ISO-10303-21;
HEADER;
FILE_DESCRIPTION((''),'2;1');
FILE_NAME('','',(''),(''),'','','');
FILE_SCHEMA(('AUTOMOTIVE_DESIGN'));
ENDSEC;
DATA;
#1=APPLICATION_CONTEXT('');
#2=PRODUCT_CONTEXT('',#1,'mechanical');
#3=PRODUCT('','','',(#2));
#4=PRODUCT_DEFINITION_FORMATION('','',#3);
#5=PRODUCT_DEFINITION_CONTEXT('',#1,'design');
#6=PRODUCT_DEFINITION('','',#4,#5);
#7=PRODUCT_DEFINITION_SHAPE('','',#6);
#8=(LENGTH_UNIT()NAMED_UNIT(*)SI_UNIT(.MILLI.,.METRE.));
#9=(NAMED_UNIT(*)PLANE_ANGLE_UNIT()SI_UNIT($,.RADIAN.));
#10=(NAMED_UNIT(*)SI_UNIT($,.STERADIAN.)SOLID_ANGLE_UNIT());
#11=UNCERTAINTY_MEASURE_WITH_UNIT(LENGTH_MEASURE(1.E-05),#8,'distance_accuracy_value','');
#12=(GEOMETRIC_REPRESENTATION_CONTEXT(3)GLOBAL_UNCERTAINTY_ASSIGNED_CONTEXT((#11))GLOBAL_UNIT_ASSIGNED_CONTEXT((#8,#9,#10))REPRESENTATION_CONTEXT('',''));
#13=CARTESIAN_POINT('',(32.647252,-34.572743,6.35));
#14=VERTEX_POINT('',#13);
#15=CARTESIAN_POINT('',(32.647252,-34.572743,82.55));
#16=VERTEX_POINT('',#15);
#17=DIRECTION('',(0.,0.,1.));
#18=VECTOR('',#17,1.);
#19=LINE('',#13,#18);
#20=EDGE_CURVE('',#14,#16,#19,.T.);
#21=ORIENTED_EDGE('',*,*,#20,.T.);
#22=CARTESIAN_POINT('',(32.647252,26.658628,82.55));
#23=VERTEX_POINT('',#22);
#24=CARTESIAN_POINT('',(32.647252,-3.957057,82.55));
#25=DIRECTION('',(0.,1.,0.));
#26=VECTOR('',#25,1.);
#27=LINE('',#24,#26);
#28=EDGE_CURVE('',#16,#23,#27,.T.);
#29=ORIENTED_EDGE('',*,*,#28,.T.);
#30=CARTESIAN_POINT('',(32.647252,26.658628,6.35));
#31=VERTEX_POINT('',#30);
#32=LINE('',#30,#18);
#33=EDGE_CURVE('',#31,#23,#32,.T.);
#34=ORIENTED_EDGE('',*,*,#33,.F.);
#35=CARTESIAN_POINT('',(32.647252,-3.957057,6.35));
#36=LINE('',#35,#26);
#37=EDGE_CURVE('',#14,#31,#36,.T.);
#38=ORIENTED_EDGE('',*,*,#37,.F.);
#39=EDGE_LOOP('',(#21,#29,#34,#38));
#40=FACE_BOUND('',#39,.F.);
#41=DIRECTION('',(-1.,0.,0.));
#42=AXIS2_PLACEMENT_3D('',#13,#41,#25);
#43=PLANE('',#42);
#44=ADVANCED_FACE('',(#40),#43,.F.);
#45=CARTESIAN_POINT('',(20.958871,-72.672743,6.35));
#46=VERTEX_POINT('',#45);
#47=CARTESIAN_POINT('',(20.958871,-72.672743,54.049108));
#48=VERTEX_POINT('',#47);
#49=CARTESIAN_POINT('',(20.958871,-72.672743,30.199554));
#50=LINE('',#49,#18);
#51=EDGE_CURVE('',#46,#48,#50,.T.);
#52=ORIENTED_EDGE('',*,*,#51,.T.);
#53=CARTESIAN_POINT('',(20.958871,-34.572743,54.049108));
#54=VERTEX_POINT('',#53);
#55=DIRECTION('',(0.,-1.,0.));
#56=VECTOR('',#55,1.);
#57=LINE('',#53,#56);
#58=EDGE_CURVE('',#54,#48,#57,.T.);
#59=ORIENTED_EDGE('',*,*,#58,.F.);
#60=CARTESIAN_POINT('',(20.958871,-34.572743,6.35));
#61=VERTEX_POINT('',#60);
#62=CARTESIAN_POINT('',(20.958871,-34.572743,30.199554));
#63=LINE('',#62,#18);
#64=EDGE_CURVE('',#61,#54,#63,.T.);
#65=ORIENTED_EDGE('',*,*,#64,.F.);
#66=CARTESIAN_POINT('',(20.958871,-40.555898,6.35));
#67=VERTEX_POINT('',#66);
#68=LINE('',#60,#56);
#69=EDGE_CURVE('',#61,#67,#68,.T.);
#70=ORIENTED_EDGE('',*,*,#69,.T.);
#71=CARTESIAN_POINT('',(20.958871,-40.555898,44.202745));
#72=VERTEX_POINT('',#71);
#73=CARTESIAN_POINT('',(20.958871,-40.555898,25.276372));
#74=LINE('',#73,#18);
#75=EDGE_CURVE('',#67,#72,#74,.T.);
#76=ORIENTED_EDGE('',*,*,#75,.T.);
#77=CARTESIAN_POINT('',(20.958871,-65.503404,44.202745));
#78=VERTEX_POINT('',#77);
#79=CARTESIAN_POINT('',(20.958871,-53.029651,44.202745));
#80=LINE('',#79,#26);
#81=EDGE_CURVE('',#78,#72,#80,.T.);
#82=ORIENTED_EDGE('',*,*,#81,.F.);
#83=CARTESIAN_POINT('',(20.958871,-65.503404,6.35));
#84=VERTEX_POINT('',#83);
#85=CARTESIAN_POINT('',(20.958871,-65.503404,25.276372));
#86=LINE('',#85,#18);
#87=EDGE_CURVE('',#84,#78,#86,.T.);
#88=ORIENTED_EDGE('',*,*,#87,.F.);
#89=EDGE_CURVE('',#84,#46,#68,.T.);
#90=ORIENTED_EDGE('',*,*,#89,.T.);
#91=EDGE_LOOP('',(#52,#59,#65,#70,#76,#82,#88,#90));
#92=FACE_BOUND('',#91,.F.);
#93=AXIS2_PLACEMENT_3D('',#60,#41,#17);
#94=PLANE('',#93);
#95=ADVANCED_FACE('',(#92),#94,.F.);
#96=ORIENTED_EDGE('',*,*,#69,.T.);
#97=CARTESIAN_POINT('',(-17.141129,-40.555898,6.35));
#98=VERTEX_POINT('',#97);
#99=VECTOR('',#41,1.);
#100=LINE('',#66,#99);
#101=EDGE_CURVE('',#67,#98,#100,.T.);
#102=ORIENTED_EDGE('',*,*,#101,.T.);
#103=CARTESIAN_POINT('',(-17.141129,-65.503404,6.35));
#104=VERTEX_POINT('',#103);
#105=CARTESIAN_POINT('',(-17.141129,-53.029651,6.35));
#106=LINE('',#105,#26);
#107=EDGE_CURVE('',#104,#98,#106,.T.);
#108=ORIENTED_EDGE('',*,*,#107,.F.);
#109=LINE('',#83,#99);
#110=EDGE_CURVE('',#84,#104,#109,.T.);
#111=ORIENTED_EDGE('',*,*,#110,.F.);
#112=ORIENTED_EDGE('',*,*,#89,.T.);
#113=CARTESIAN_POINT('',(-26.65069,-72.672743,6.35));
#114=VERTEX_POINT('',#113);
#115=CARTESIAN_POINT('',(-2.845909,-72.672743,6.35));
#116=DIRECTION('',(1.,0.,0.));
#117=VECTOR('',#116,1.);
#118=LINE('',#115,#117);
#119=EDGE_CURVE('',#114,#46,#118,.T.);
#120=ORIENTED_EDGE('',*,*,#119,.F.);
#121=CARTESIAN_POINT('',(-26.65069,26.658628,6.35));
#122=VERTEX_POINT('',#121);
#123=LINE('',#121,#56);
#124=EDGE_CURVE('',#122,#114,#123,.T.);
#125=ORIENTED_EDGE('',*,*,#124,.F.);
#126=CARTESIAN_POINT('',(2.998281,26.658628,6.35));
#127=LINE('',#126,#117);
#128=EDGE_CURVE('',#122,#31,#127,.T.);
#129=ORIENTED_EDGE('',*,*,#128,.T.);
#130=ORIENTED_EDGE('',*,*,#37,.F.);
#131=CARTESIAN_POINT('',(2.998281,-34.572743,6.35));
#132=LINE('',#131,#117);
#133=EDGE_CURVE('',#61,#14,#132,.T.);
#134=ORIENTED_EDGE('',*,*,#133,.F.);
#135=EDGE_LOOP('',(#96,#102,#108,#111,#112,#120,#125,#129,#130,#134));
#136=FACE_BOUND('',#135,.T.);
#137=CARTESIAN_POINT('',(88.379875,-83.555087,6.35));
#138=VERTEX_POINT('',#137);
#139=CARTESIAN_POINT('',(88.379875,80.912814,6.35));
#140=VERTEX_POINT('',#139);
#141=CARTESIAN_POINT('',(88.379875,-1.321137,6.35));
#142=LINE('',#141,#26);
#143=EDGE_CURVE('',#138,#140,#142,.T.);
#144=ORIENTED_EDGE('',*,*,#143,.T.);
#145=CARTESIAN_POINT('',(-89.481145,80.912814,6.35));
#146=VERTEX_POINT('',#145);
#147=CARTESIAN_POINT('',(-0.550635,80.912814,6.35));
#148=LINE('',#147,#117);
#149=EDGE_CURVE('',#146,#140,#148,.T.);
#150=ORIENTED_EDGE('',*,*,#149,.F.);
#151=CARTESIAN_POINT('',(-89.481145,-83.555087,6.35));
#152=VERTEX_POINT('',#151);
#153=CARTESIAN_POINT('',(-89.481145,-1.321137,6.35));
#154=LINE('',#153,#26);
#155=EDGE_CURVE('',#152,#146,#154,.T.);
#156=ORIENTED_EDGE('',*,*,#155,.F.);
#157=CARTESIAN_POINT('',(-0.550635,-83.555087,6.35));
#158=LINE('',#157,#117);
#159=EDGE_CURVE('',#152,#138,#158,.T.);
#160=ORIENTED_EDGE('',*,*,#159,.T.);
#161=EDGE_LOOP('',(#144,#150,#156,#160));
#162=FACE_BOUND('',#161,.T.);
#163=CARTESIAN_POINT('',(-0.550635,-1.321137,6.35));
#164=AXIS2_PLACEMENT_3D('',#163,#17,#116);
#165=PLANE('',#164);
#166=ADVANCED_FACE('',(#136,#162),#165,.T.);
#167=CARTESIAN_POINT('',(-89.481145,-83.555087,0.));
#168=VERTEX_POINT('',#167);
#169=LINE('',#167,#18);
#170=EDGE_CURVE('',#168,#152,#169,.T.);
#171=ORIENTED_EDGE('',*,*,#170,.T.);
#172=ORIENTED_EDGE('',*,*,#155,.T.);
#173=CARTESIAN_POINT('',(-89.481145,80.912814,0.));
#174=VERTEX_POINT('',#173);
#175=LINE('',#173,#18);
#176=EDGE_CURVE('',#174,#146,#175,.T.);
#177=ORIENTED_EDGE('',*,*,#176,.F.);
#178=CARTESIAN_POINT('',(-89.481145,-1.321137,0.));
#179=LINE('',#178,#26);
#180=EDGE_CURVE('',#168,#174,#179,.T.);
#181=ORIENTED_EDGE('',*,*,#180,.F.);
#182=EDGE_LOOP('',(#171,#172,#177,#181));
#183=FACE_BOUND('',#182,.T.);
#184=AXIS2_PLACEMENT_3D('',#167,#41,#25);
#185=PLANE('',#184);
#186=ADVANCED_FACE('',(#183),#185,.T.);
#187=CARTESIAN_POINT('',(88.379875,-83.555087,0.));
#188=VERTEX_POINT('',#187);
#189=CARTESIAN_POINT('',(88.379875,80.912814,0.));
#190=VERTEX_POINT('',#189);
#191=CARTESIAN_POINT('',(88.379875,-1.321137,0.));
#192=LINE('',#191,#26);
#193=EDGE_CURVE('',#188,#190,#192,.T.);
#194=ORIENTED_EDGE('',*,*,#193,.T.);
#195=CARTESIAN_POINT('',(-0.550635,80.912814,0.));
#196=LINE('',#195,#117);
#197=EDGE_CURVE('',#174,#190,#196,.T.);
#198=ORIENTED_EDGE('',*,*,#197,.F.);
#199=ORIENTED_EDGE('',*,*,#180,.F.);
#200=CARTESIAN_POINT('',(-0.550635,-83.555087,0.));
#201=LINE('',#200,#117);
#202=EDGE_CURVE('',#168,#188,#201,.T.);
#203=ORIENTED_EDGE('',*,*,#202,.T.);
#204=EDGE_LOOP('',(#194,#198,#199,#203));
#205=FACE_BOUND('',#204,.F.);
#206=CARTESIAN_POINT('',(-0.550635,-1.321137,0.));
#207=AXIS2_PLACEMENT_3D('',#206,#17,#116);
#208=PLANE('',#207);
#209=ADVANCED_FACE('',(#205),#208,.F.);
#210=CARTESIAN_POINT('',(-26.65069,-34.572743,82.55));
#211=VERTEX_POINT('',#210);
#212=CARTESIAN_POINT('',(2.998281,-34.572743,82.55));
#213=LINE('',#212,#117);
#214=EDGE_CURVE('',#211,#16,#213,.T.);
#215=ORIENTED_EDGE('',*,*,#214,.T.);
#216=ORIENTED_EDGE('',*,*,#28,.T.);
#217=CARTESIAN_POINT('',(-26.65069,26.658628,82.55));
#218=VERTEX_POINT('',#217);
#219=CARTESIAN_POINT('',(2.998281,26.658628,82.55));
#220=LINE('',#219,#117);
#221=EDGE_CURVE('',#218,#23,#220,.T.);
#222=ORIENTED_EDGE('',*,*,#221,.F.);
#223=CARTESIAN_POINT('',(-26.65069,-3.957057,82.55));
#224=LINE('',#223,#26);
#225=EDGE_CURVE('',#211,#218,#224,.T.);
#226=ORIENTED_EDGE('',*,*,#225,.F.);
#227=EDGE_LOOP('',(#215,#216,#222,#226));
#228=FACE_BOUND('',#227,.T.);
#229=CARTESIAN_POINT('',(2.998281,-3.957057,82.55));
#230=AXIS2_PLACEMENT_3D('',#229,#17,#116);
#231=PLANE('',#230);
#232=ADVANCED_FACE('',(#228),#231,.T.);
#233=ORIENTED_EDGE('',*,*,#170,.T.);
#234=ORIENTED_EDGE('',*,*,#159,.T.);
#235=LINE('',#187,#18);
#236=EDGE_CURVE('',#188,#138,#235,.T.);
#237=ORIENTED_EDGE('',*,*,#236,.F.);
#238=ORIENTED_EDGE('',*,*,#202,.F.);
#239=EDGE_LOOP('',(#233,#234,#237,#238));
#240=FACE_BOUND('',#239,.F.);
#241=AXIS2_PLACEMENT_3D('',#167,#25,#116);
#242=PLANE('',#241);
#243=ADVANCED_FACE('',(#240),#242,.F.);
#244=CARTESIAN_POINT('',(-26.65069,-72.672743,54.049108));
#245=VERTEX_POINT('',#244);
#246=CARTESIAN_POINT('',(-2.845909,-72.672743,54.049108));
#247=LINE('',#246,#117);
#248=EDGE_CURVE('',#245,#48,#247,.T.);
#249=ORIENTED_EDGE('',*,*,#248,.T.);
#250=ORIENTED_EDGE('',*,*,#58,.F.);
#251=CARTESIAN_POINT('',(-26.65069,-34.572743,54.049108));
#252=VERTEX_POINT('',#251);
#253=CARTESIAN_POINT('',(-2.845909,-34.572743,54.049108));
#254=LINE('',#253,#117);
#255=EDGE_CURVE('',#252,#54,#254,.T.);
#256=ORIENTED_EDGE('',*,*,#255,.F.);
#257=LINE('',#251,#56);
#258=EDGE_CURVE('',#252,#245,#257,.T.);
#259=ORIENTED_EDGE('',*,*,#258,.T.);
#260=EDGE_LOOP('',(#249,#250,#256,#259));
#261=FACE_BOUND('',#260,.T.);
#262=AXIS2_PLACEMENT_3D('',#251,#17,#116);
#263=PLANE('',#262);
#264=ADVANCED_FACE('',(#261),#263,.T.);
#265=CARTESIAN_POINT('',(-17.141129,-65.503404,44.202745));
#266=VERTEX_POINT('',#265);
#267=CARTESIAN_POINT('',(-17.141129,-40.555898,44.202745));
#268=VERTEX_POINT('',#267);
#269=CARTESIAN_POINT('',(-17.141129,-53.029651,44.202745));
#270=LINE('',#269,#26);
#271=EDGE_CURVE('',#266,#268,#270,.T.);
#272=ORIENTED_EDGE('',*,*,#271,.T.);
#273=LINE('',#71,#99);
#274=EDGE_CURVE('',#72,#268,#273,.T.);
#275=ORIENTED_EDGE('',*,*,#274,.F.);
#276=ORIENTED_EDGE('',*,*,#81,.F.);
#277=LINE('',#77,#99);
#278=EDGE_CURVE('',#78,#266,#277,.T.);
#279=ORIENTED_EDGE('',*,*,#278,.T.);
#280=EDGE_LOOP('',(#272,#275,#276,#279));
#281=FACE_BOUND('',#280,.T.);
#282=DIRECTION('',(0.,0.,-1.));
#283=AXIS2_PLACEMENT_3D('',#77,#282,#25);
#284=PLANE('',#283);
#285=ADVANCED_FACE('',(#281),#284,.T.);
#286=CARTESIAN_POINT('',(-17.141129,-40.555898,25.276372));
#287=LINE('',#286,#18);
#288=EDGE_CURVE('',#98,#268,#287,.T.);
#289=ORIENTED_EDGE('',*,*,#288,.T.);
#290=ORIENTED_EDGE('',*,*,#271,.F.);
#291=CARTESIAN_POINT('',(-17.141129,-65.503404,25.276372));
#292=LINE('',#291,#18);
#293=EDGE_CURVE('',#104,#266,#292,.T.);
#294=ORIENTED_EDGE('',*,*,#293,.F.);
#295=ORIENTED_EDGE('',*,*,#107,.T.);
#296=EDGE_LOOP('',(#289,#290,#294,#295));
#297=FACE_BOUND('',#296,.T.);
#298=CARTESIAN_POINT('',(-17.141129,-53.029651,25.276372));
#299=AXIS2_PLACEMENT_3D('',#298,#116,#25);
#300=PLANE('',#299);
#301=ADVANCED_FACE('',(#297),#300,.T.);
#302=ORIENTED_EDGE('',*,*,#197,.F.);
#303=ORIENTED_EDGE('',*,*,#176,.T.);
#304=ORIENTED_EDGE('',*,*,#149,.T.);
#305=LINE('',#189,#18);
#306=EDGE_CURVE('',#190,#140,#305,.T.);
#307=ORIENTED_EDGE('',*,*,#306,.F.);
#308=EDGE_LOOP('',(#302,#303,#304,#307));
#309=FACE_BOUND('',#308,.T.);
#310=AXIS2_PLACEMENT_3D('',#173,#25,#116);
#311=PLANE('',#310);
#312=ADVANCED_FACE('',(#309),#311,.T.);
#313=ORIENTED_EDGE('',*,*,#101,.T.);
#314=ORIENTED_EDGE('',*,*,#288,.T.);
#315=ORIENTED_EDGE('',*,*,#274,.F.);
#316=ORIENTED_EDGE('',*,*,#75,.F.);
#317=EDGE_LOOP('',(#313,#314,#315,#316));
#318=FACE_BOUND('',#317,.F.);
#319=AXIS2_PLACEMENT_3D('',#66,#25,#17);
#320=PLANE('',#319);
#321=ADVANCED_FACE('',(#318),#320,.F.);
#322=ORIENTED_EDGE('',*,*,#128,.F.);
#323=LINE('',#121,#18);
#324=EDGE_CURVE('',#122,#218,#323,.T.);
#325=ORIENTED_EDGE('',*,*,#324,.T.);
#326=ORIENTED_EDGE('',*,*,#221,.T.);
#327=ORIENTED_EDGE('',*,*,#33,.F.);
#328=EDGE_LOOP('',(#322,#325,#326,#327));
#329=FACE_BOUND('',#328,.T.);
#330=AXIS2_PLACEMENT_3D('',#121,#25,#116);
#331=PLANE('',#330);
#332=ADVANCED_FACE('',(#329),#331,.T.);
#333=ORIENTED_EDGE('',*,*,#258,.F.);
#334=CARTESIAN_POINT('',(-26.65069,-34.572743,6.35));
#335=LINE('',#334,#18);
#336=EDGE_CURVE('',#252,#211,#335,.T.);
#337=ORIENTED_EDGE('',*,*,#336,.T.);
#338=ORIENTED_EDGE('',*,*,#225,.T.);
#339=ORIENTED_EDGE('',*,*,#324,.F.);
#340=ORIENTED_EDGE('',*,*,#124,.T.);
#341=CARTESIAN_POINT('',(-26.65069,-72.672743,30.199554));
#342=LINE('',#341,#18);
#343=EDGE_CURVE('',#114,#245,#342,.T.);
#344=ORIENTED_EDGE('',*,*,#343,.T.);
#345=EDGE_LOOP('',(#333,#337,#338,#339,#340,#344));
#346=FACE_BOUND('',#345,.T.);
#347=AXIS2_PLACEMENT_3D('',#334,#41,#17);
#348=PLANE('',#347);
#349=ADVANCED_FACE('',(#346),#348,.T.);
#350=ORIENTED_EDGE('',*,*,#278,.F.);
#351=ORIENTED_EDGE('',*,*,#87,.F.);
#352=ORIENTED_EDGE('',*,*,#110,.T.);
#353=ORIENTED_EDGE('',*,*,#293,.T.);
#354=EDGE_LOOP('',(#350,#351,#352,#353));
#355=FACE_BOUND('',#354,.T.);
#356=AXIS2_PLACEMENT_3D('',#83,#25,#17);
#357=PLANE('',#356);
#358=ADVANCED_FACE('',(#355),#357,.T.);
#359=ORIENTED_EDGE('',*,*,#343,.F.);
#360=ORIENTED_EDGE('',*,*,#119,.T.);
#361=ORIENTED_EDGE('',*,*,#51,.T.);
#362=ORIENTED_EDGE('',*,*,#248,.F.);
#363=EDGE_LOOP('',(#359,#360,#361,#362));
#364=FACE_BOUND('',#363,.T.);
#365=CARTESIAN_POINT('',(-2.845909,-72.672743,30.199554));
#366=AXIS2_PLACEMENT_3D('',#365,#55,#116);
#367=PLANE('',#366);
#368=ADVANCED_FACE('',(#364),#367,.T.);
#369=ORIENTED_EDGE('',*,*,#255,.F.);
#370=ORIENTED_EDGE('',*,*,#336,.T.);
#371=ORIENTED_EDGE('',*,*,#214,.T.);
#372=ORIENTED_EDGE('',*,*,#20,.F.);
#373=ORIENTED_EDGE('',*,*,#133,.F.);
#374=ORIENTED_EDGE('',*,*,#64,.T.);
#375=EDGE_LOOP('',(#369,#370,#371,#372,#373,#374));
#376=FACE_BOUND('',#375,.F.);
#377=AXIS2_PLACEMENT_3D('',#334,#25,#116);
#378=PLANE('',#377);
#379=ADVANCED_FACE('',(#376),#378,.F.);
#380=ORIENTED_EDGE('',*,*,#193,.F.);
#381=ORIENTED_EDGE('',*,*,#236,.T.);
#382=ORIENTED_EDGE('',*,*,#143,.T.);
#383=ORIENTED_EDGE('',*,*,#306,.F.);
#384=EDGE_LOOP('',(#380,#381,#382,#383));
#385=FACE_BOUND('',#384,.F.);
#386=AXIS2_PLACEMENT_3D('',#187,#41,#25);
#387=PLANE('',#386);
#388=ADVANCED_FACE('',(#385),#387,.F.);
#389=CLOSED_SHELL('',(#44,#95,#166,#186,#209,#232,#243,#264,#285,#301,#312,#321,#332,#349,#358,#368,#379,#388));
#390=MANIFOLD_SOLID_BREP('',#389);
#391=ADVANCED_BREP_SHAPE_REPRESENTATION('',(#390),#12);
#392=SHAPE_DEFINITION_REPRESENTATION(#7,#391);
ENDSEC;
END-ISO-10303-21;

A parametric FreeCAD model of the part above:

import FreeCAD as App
import Part
import Sketcher
Q = App.Units.Quantity


def add_polygon(sketch, points):
    """Adds a closed chain of lines whose ends are joined by coincident constraints."""
    first, n = sketch.GeometryCount, len(points)
    for a, b in zip(points, points[1:] + points[:1]):
        sketch.addGeometry(Part.LineSegment(App.Vector(*a, 0), App.Vector(*b, 0)), False)
    for i in range(n):
        sketch.addConstraint(Sketcher.Constraint("Coincident", first + i, 2, first + (i + 1) % n, 1))

doc = App.newDocument("Part")
body = doc.addObject("PartDesign::Body", "Body")

# Sketch on XY plane
sketch1 = body.newObject("Sketcher::SketchObject", "Sketch")
sketch1.AttachmentSupport = (doc.getObject("XY_Plane"), [""])
sketch1.MapMode = "FlatFace"
add_polygon(sketch1, [(-89.481145, 80.912814), (-89.481145, -83.555087), (88.379875, -83.555087), (88.379875, 80.912814)])  # lines 0-3
sketch1.addConstraint(Sketcher.Constraint("Vertical", 0))
sketch1.addConstraint(Sketcher.Constraint("Horizontal", 1))
sketch1.addConstraint(Sketcher.Constraint("Vertical", 2))
sketch1.addConstraint(Sketcher.Constraint("Horizontal", 3))
sketch1.addConstraint(Sketcher.Constraint("DistanceY", 0, 2, 0, 1, 164.467901))
sketch1.addConstraint(Sketcher.Constraint("DistanceX", 1, 1, 1, 2, 177.86102))
sketch1.addConstraint(Sketcher.Constraint("DistanceX", 0, 2, -1, 1, 89.481145))
sketch1.addConstraint(Sketcher.Constraint("DistanceY", 0, 2, -1, 1, 83.555087))
pad1 = body.newObject("PartDesign::Pad", "Pad")
pad1.Profile = sketch1
pad1.Length = Q("0.25 in")

# Sketch on XY plane
sketch2 = body.newObject("Sketcher::SketchObject", "Sketch001")
sketch2.AttachmentSupport = (doc.getObject("XY_Plane"), [""])
sketch2.MapMode = "FlatFace"
sketch2.AttachmentOffset = App.Placement(App.Vector(0, 0, 0.25 * 25.4), App.Rotation())
add_polygon(sketch2, [(-26.65069, 26.658628), (-26.65069, -34.572743), (32.647252, -34.572743), (32.647252, 26.658628)])  # lines 0-3
sketch2.addConstraint(Sketcher.Constraint("Vertical", 0))
sketch2.addConstraint(Sketcher.Constraint("Horizontal", 1))
sketch2.addConstraint(Sketcher.Constraint("Vertical", 2))
sketch2.addConstraint(Sketcher.Constraint("Horizontal", 3))
sketch2.addConstraint(Sketcher.Constraint("DistanceX", 1, 1, 1, 2, 59.297942))
sketch2.addConstraint(Sketcher.Constraint("DistanceY", 0, 2, 0, 1, 61.231371))
sketch2.addConstraint(Sketcher.Constraint("DistanceX", 0, 2, -1, 1, 26.65069))
sketch2.addConstraint(Sketcher.Constraint("DistanceY", -1, 1, 2, 2, 26.658628))
pad2 = body.newObject("PartDesign::Pad", "Pad001")
pad2.Profile = sketch2
pad2.Length = Q("3 in")

# Sketch on XZ plane
sketch3 = body.newObject("Sketcher::SketchObject", "Sketch002")
sketch3.AttachmentSupport = (doc.getObject("XZ_Plane"), [""])
sketch3.MapMode = "FlatFace"
sketch3.AttachmentOffset = App.Placement(App.Vector(0, 0, 34.572743), App.Rotation())
add_polygon(sketch3, [(-26.65069, 54.049108), (-26.65069, 6.35), (20.958871, 6.35), (20.958871, 54.049108)])  # lines 0-3
sketch3.addConstraint(Sketcher.Constraint("Vertical", 0))
sketch3.addConstraint(Sketcher.Constraint("Horizontal", 1))
sketch3.addConstraint(Sketcher.Constraint("Vertical", 2))
sketch3.addConstraint(Sketcher.Constraint("Horizontal", 3))
sketch3.addConstraint(Sketcher.Constraint("DistanceY", -1, 1, 0, 2, Q("0.25 in")))
sketch3.addConstraint(Sketcher.Constraint("DistanceX", 1, 1, 1, 2, 47.60956))
sketch3.addConstraint(Sketcher.Constraint("DistanceY", 0, 2, 0, 1, 47.699108))
sketch3.addConstraint(Sketcher.Constraint("DistanceX", 0, 2, -1, 1, 26.65069))
pad3 = body.newObject("PartDesign::Pad", "Pad002")
pad3.Profile = sketch3
pad3.Length = Q("1.5 in")

# Sketch on YZ plane
sketch4 = body.newObject("Sketcher::SketchObject", "Sketch003")
sketch4.AttachmentSupport = (doc.getObject("YZ_Plane"), [""])
sketch4.MapMode = "FlatFace"
sketch4.AttachmentOffset = App.Placement(App.Vector(0, 0, 20.958871), App.Rotation())
add_polygon(sketch4, [(-65.503404, 44.202745), (-65.503404, 6.35), (-40.555898, 6.35), (-40.555898, 44.202745)])  # lines 0-3
sketch4.addConstraint(Sketcher.Constraint("Vertical", 0))
sketch4.addConstraint(Sketcher.Constraint("Horizontal", 1))
sketch4.addConstraint(Sketcher.Constraint("Vertical", 2))
sketch4.addConstraint(Sketcher.Constraint("Horizontal", 3))
sketch4.addConstraint(Sketcher.Constraint("DistanceY", -1, 1, 0, 2, Q("0.25 in")))
sketch4.addConstraint(Sketcher.Constraint("DistanceX", 1, 2, -1, 1, 40.555898))
sketch4.addConstraint(Sketcher.Constraint("DistanceX", 1, 1, 1, 2, 24.947505))
sketch4.addConstraint(Sketcher.Constraint("DistanceY", 0, 2, 0, 1, 37.852745))
pocket1 = body.newObject("PartDesign::Pocket", "Pocket")
pocket1.Profile = sketch4
pocket1.Length = Q("1.5 in")

doc.recompute()
